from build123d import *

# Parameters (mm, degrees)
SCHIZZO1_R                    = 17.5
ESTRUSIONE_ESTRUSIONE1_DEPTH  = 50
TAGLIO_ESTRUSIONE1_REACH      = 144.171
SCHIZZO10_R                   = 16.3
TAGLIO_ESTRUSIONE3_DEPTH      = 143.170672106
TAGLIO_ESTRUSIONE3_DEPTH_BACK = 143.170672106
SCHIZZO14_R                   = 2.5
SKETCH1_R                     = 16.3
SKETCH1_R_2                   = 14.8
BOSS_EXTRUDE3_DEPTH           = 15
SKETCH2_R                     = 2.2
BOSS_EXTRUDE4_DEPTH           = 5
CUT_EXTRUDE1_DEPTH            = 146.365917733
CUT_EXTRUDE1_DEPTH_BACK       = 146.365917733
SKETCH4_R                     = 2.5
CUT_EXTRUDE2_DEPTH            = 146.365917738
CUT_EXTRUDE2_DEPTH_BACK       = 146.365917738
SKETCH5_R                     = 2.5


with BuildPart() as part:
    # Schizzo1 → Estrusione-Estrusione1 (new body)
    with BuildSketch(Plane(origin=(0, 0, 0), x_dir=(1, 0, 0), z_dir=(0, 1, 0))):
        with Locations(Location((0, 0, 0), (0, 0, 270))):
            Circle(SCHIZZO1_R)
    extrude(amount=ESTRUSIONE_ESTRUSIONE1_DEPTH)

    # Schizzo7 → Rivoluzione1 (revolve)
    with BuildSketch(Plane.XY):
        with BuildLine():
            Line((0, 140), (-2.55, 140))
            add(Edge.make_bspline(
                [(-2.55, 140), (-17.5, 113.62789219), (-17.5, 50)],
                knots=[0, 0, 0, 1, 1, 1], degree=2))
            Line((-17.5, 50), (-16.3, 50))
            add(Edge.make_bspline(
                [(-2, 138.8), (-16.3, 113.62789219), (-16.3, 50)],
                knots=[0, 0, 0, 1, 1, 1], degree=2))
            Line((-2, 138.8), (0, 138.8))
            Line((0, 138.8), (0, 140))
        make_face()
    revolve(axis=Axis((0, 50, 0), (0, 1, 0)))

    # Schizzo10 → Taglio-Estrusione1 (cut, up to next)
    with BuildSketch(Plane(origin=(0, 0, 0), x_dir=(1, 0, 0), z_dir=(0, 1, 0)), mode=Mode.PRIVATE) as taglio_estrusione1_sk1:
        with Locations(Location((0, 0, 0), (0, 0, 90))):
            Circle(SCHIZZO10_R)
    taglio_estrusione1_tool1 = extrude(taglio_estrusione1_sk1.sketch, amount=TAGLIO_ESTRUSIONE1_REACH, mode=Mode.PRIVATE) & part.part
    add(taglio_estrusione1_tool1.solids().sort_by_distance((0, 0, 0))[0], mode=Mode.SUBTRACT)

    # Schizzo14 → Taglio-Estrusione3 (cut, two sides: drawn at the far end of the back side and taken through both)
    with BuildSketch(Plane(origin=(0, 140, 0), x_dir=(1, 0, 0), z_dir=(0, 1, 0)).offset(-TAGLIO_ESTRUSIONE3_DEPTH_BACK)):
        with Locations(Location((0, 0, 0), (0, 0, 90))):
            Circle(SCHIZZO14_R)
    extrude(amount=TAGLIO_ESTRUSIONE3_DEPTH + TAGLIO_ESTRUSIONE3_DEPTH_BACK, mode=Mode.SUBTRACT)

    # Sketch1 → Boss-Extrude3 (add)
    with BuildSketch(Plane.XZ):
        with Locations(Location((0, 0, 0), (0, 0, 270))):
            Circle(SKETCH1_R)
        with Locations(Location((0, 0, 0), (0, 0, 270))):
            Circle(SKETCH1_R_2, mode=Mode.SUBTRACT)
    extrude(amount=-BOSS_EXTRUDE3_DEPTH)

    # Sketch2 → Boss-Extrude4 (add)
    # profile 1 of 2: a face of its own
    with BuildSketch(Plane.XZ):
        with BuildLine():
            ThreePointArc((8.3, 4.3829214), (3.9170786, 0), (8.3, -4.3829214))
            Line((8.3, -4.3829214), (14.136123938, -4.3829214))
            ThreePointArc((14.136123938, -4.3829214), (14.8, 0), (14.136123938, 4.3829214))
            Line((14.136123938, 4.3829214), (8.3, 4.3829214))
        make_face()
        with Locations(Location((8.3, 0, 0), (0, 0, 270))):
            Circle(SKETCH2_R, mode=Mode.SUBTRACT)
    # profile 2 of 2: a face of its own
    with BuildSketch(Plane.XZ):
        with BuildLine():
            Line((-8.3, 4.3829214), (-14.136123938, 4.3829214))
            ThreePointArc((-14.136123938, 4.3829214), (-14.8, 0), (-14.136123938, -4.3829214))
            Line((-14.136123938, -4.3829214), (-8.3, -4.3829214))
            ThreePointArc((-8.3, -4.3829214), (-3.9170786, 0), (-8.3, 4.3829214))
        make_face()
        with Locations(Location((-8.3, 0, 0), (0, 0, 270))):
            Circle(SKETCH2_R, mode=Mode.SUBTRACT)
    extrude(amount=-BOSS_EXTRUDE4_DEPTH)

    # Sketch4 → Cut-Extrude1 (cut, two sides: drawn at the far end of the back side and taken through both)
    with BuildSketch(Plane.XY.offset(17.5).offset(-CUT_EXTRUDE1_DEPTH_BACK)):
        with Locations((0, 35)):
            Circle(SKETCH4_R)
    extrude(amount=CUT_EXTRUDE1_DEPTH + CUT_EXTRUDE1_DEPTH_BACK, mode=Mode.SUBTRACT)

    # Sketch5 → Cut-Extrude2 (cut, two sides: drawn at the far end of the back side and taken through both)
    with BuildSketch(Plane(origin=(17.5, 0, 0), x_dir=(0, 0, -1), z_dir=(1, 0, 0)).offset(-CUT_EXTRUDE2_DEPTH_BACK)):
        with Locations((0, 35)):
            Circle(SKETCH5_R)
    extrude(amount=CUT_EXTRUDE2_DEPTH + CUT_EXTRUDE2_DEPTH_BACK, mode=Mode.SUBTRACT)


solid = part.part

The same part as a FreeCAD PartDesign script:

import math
import FreeCAD as App
import Part
import Sketcher
Q = App.Units.Quantity

doc = App.newDocument("Part")
body = doc.addObject("PartDesign::Body", "Body")

sketch1 = body.newObject("Sketcher::SketchObject", "Sketch")
sketch1.AttachmentSupport = (doc.getObject("XZ_Plane"), [""])
sketch1.MapMode = "FlatFace"
sketch1.addGeometry(Part.Circle(App.Vector(0, 0, 0), App.Vector(0, 0, 1), 18), False)
sketch1.addConstraint([
    Sketcher.Constraint("Coincident", 0, 3, -1, 1),
    Sketcher.Constraint("Diameter", 0, Q("35 mm")),
])
pad1 = body.newObject("PartDesign::Pad", "Pad")
pad1.Profile = sketch1
pad1.Length = 50
pad1.Reversed = True

sketch2 = body.newObject("Sketcher::SketchObject", "Sketch001")
sketch2.AttachmentSupport = (doc.getObject("XY_Plane"), [""])
sketch2.MapMode = "FlatFace"
sketch2.addGeometry([
    Part.LineSegment(App.Vector(0, 140, 0), App.Vector(-2.55, 140, 0)),
    Part.BSplineCurve([App.Vector(-2.55, 140, 0), App.Vector(-17.5, 113.627892, 0), App.Vector(-17.5, 50, 0)], [3, 3], [0, 1], False, 2, [1, 1, 1], False),
    Part.LineSegment(App.Vector(-17.5, 50, 0), App.Vector(-16.3, 50, 0)),
    Part.BSplineCurve([App.Vector(-2, 138.8, 0), App.Vector(-16.3, 113.627892, 0), App.Vector(-16.3, 50, 0)], [3, 3], [0, 1], False, 2, [1, 1, 1], False),
    Part.LineSegment(App.Vector(-2, 138.8, 0), App.Vector(0, 138.8, 0)),
    Part.LineSegment(App.Vector(0, 138.8, 0), App.Vector(0, 140, 0)),
], False)
sketch2.addConstraint([
    Sketcher.Constraint("Block", 1),
    Sketcher.Constraint("Block", 3),
    Sketcher.Constraint("Coincident", 0, 2, 1, 1),
    Sketcher.Constraint("Coincident", 1, 2, 2, 1),
    Sketcher.Constraint("Coincident", 2, 2, 3, 2),
    Sketcher.Constraint("Coincident", 3, 1, 4, 1),
    Sketcher.Constraint("Coincident", 4, 2, 5, 1),
    Sketcher.Constraint("Coincident", 5, 2, 0, 1),
    Sketcher.Constraint("Horizontal", 0),
    Sketcher.Constraint("Horizontal", 4),
    Sketcher.Constraint("Vertical", 5),
    Sketcher.Constraint("PointOnObject", 4, 2, -2),
])
revolution = body.newObject("PartDesign::Revolution", "Revolution")
revolution.Profile = sketch2
revolution.ReferenceAxis = (sketch2, ["V_Axis"])
revolution.Angle = 360

sketch3 = body.newObject("Sketcher::SketchObject", "Sketch002")
sketch3.AttachmentSupport = (doc.getObject("XZ_Plane"), [""])
sketch3.MapMode = "FlatFace"
sketch3.addGeometry(Part.Circle(App.Vector(0, 0, 0), App.Vector(0, 0, 1), 16), False)
sketch3.addConstraint([
    Sketcher.Constraint("Coincident", 0, 3, -1, 1),
    Sketcher.Constraint("Diameter", 0, Q("32.6 mm")),
])
pocket1 = body.newObject("PartDesign::Pocket", "Pocket")
pocket1.Profile = sketch3
pocket1.Type = "UpToFirst"

sketch4 = body.newObject("Sketcher::SketchObject", "Sketch003")
sketch4.AttachmentSupport = (doc.getObject("XZ_Plane"), [""])
sketch4.MapMode = "FlatFace"
sketch4.AttachmentOffset = App.Placement(App.Vector(0, 0, -140), App.Rotation())
sketch4.addGeometry(Part.Circle(App.Vector(0, 0, 0), App.Vector(0, 0, 1), 2.5), False)
sketch4.addConstraint([
    Sketcher.Constraint("Coincident", 0, 3, -1, 1),
    Sketcher.Constraint("Diameter", 0, Q("5 mm")),
])
pocket2 = body.newObject("PartDesign::Pocket", "Pocket001")
pocket2.Profile = sketch4
pocket2.Type = "ThroughAll"
pocket2.Midplane = True

sketch5 = body.newObject("Sketcher::SketchObject", "Sketch004")
sketch5.AttachmentSupport = (doc.getObject("XZ_Plane"), [""])
sketch5.MapMode = "FlatFace"
sketch5.addGeometry([
    Part.Circle(App.Vector(0, 0, 0), App.Vector(0, 0, 1), 16),
    Part.Circle(App.Vector(0, 0, 0), App.Vector(0, 0, 1), 15),
], False)
sketch5.addConstraint([
    Sketcher.Constraint("Coincident", 0, 3, -1, 1),
    Sketcher.Constraint("Coincident", 1, 3, -1, 1),
    Sketcher.Constraint("Diameter", 0, Q("32.6 mm")),
    Sketcher.Constraint("Diameter", 1, Q("29.6 mm")),
])
pad2 = body.newObject("PartDesign::Pad", "Pad001")
pad2.Profile = sketch5
pad2.Length = 15
pad2.Reversed = True

sketch6 = body.newObject("Sketcher::SketchObject", "Sketch005")
sketch6.AttachmentSupport = (doc.getObject("XZ_Plane"), [""])
sketch6.MapMode = "FlatFace"
sketch6.addGeometry([
    Part.ArcOfCircle(Part.Circle(App.Vector(8.3, 0, 0), App.Vector(0, 0, 1), 4.4), math.radians(90), math.radians(270)),
    Part.LineSegment(App.Vector(8.3, -4.4, 0), App.Vector(14.1, -4.4, 0)),
    Part.ArcOfCircle(Part.Circle(App.Vector(0, 0, 0), App.Vector(0, 0, 1), 14.8), math.radians(-17), math.radians(17)),
    Part.LineSegment(App.Vector(14.1, 4.4, 0), App.Vector(8.3, 4.4, 0)),
    Part.Circle(App.Vector(8.3, 0, 0), App.Vector(0, 0, 1), 2.2),
    Part.LineSegment(App.Vector(-8.3, 4.4, 0), App.Vector(-14.1, 4.4, 0)),
    Part.ArcOfCircle(Part.Circle(App.Vector(0, 0, 0), App.Vector(0, 0, 1), 14.8), math.radians(163), math.radians(197)),
    Part.LineSegment(App.Vector(-14.1, -4.4, 0), App.Vector(-8.3, -4.4, 0)),
    Part.ArcOfCircle(Part.Circle(App.Vector(-8.3, 0, 0), App.Vector(0, 0, 1), 4.4), math.radians(-90), math.radians(90)),
    Part.Circle(App.Vector(-8.3, 0, 0), App.Vector(0, 0, 1), 2.2),
], False)
sketch6.addConstraint([
    Sketcher.Constraint("Tangent", 0, 2, 1, 1),
    Sketcher.Constraint("Coincident", 1, 2, 2, 1),
    Sketcher.Constraint("Coincident", 2, 2, 3, 1),
    Sketcher.Constraint("Tangent", 3, 2, 0, 1),
    Sketcher.Constraint("Coincident", 5, 2, 6, 1),
    Sketcher.Constraint("Coincident", 6, 2, 7, 1),
    Sketcher.Constraint("Tangent", 7, 2, 8, 1),
    Sketcher.Constraint("Tangent", 8, 2, 5, 1),
    Sketcher.Constraint("Horizontal", 1),
    Sketcher.Constraint("Horizontal", 3),
    Sketcher.Constraint("Horizontal", 5),
    Sketcher.Constraint("Horizontal", 7),
    Sketcher.Constraint("Coincident", 2, 3, -1, 1),
    Sketcher.Constraint("Coincident", 6, 3, -1, 1),
    Sketcher.Constraint("Coincident", 4, 3, 0, 3),
    Sketcher.Constraint("Coincident", 9, 3, 8, 3),
    Sketcher.Constraint("Equal", 2, 6),
    Sketcher.Constraint("Equal", 0, 8),
    Sketcher.Constraint("Equal", 4, 9),
    Sketcher.Constraint("Symmetric", 0, 3, 8, 3, -1, 1),
    Sketcher.Constraint("PointOnObject", 0, 3, -1),
    Sketcher.Constraint("Diameter", 4, Q("4.4 mm")),
    Sketcher.Constraint("Radius", 2, Q("14.8 mm")),
    Sketcher.Constraint("DistanceX", -1, 1, 0, 3, Q("8.3 mm")),
    Sketcher.Constraint("Radius", 0, Q("4.382921 mm")),
])
pad3 = body.newObject("PartDesign::Pad", "Pad002")
pad3.Profile = sketch6
pad3.Length = 5
pad3.Reversed = True

sketch7 = body.newObject("Sketcher::SketchObject", "Sketch006")
sketch7.AttachmentSupport = (doc.getObject("XY_Plane"), [""])
sketch7.MapMode = "FlatFace"
sketch7.AttachmentOffset = App.Placement(App.Vector(0, 0, 17.5), App.Rotation())
sketch7.addGeometry(Part.Circle(App.Vector(0, 35, 0), App.Vector(0, 0, 1), 2.5), False)
sketch7.addConstraint([
    Sketcher.Constraint("PointOnObject", 0, 3, -2),
    Sketcher.Constraint("Diameter", 0, Q("5 mm")),
    Sketcher.Constraint("DistanceY", -1, 1, 0, 3, Q("35 mm")),
])
pocket3 = body.newObject("PartDesign::Pocket", "Pocket002")
pocket3.Profile = sketch7
pocket3.Type = "ThroughAll"
pocket3.Midplane = True

sketch8 = body.newObject("Sketcher::SketchObject", "Sketch007")
sketch8.AttachmentSupport = (doc.getObject("YZ_Plane"), [""])
sketch8.MapMode = "FlatFace"
sketch8.AttachmentOffset = App.Placement(App.Vector(0, 0, 17.5), App.Rotation())
sketch8.addGeometry(Part.Circle(App.Vector(35, 0, 0), App.Vector(0, 0, 1), 2.5), False)
sketch8.addConstraint([
    Sketcher.Constraint("PointOnObject", 0, 3, -1),
    Sketcher.Constraint("Diameter", 0, Q("5 mm")),
    Sketcher.Constraint("DistanceX", -1, 1, 0, 3, Q("35 mm")),
])
pocket4 = body.newObject("PartDesign::Pocket", "Pocket003")
pocket4.Profile = sketch8
pocket4.Type = "ThroughAll"
pocket4.Midplane = True

doc.recompute()
